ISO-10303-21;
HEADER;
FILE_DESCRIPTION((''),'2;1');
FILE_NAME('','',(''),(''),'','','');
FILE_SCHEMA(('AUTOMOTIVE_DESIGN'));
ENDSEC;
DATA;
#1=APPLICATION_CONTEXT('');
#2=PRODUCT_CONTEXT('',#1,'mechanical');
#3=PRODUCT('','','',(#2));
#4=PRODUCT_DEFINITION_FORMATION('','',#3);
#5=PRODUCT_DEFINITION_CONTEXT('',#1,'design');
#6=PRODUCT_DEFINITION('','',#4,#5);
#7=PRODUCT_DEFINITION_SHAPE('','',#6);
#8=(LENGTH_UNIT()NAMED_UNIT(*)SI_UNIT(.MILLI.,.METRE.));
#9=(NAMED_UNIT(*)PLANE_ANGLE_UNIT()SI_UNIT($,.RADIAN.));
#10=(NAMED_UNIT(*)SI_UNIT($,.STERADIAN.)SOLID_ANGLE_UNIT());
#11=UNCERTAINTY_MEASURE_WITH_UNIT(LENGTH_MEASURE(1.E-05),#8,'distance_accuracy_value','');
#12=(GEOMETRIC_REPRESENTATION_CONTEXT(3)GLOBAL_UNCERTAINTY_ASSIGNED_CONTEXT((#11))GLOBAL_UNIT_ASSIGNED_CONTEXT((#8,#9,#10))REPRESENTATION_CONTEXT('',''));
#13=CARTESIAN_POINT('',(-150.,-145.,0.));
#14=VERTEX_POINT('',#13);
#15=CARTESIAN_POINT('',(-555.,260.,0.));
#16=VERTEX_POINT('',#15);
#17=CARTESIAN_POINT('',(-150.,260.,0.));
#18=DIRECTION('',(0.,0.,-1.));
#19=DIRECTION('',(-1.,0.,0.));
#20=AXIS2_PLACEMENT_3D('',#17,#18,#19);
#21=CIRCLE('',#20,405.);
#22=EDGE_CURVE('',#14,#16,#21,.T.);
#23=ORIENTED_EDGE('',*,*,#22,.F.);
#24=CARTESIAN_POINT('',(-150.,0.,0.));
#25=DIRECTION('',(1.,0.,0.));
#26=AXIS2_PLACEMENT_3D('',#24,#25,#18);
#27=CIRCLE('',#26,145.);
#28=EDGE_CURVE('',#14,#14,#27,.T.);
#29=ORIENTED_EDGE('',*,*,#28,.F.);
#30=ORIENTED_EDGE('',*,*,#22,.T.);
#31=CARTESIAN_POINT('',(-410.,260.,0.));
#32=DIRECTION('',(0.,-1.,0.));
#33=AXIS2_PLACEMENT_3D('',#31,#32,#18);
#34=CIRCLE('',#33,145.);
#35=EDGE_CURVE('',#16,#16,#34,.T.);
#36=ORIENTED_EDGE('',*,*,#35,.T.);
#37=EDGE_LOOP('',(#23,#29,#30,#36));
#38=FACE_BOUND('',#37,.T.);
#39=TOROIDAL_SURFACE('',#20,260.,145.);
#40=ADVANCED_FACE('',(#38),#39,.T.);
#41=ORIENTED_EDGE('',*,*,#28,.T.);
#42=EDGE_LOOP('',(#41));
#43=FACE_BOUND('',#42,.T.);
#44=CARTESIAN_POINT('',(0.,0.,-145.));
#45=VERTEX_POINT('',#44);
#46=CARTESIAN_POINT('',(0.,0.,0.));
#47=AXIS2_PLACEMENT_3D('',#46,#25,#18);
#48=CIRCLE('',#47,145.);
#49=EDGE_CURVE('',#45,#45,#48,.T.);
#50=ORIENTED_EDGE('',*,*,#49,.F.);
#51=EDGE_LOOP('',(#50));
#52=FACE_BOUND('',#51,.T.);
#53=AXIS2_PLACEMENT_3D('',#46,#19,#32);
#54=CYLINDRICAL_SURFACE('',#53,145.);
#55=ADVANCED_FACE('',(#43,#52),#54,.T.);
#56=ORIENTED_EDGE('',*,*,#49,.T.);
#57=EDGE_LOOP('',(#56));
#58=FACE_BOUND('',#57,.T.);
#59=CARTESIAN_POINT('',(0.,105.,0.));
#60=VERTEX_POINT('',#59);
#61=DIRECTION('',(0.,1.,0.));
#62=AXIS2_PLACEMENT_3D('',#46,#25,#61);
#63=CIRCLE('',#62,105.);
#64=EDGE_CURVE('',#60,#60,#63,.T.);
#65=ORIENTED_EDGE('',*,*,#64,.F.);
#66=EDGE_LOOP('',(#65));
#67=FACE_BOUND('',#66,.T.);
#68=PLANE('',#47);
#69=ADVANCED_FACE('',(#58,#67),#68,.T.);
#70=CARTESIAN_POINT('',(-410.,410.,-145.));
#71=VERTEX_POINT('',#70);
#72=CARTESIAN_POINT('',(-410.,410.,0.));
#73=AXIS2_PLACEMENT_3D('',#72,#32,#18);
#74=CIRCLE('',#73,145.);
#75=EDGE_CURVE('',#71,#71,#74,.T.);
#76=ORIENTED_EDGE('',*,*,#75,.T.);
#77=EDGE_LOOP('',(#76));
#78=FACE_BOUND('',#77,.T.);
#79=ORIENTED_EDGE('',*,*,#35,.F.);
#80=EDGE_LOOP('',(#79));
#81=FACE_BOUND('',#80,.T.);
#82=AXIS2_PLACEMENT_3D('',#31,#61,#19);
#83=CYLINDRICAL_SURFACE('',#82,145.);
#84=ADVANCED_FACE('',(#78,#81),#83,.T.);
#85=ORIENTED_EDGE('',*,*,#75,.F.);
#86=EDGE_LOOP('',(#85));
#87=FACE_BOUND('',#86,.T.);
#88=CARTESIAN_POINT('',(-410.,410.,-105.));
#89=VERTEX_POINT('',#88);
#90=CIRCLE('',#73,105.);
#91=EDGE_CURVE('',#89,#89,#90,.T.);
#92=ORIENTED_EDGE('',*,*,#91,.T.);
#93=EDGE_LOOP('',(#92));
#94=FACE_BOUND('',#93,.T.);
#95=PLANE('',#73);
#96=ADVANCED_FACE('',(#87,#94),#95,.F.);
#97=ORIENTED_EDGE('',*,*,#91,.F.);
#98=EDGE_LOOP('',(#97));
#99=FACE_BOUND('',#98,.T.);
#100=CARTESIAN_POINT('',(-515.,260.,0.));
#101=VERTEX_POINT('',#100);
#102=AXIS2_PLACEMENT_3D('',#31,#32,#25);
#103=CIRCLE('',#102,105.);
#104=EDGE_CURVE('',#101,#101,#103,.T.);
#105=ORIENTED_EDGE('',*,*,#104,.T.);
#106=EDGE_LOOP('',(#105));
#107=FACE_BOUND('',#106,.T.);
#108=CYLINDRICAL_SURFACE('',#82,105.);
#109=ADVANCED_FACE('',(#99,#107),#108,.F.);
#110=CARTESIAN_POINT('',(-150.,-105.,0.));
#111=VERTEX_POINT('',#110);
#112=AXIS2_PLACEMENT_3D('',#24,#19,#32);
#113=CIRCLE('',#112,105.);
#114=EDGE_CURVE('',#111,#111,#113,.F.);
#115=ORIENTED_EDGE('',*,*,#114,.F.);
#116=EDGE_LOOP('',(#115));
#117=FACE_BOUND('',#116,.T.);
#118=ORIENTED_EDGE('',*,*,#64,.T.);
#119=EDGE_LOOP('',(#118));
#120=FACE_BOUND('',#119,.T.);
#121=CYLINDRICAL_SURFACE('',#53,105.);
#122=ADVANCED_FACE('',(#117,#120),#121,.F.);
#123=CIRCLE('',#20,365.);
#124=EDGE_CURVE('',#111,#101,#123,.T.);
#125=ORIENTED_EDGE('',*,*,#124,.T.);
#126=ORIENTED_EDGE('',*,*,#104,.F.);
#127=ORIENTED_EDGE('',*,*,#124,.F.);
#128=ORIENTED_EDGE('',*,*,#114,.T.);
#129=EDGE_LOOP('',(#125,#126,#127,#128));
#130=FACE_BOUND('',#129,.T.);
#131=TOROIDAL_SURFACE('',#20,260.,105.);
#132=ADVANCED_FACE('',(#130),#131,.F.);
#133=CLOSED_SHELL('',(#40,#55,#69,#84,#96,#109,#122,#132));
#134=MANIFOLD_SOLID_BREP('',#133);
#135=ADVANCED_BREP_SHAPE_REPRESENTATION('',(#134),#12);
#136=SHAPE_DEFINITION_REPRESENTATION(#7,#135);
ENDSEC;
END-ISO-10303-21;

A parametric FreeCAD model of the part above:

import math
import FreeCAD as App
import Part
import Sketcher

doc = App.newDocument("Part")
body = doc.addObject("PartDesign::Body", "Body")

# Sketch on YZ plane
sketch1 = body.newObject("Sketcher::SketchObject", "Sketch")
sketch1.AttachmentSupport = (doc.getObject("YZ_Plane"), [""])
sketch1.MapMode = "FlatFace"
sketch1.addGeometry([
    Part.Circle(App.Vector(0, 0, 0), App.Vector(0, 0, 1), 145),
    Part.Circle(App.Vector(0, 0, 0), App.Vector(0, 0, 1), 105),
], False)
sketch1.addConstraint([
    Sketcher.Constraint("Coincident", 0, 3, -1, 1),
    Sketcher.Constraint("Coincident", 1, 3, -1, 1),
    Sketcher.Constraint("Diameter", 0, 290.0),
    Sketcher.Constraint("Diameter", 1, 210.0),
])

# Sketch on XY plane
sketch2 = body.newObject("Sketcher::SketchObject", "Sketch001")
sketch2.AttachmentSupport = (doc.getObject("XY_Plane"), [""])
sketch2.MapMode = "FlatFace"
sketch2.addGeometry([
    Part.LineSegment(App.Vector(0, 0, 0), App.Vector(-150, 0, 0)),
    Part.ArcOfCircle(Part.Circle(App.Vector(-150, 260, 0), App.Vector(0, 0, 1), 260), math.radians(180), math.radians(270)),
    Part.LineSegment(App.Vector(-410, 260, 0), App.Vector(-410, 410, 0)),
], False)
sketch2.addConstraint([
    Sketcher.Constraint("Tangent", 0, 2, 1, 2),
    Sketcher.Constraint("Tangent", 1, 1, 2, 1),
    Sketcher.Constraint("Horizontal", 0),
    Sketcher.Constraint("Vertical", 2),
    Sketcher.Constraint("Coincident", 0, 1, -1, 1),
    Sketcher.Constraint("Equal", 0, 2),
    Sketcher.Constraint("Radius", 1, 260.0),
    Sketcher.Constraint("DistanceX", 0, 2, 0, 1, 150.0),
])
doc.recompute()

additivepipe = body.newObject("PartDesign::AdditivePipe", "AdditivePipe")
additivepipe.Profile = sketch1
additivepipe.Spine = (sketch2, ["Edge1", "Edge2", "Edge3"])

doc.recompute()
